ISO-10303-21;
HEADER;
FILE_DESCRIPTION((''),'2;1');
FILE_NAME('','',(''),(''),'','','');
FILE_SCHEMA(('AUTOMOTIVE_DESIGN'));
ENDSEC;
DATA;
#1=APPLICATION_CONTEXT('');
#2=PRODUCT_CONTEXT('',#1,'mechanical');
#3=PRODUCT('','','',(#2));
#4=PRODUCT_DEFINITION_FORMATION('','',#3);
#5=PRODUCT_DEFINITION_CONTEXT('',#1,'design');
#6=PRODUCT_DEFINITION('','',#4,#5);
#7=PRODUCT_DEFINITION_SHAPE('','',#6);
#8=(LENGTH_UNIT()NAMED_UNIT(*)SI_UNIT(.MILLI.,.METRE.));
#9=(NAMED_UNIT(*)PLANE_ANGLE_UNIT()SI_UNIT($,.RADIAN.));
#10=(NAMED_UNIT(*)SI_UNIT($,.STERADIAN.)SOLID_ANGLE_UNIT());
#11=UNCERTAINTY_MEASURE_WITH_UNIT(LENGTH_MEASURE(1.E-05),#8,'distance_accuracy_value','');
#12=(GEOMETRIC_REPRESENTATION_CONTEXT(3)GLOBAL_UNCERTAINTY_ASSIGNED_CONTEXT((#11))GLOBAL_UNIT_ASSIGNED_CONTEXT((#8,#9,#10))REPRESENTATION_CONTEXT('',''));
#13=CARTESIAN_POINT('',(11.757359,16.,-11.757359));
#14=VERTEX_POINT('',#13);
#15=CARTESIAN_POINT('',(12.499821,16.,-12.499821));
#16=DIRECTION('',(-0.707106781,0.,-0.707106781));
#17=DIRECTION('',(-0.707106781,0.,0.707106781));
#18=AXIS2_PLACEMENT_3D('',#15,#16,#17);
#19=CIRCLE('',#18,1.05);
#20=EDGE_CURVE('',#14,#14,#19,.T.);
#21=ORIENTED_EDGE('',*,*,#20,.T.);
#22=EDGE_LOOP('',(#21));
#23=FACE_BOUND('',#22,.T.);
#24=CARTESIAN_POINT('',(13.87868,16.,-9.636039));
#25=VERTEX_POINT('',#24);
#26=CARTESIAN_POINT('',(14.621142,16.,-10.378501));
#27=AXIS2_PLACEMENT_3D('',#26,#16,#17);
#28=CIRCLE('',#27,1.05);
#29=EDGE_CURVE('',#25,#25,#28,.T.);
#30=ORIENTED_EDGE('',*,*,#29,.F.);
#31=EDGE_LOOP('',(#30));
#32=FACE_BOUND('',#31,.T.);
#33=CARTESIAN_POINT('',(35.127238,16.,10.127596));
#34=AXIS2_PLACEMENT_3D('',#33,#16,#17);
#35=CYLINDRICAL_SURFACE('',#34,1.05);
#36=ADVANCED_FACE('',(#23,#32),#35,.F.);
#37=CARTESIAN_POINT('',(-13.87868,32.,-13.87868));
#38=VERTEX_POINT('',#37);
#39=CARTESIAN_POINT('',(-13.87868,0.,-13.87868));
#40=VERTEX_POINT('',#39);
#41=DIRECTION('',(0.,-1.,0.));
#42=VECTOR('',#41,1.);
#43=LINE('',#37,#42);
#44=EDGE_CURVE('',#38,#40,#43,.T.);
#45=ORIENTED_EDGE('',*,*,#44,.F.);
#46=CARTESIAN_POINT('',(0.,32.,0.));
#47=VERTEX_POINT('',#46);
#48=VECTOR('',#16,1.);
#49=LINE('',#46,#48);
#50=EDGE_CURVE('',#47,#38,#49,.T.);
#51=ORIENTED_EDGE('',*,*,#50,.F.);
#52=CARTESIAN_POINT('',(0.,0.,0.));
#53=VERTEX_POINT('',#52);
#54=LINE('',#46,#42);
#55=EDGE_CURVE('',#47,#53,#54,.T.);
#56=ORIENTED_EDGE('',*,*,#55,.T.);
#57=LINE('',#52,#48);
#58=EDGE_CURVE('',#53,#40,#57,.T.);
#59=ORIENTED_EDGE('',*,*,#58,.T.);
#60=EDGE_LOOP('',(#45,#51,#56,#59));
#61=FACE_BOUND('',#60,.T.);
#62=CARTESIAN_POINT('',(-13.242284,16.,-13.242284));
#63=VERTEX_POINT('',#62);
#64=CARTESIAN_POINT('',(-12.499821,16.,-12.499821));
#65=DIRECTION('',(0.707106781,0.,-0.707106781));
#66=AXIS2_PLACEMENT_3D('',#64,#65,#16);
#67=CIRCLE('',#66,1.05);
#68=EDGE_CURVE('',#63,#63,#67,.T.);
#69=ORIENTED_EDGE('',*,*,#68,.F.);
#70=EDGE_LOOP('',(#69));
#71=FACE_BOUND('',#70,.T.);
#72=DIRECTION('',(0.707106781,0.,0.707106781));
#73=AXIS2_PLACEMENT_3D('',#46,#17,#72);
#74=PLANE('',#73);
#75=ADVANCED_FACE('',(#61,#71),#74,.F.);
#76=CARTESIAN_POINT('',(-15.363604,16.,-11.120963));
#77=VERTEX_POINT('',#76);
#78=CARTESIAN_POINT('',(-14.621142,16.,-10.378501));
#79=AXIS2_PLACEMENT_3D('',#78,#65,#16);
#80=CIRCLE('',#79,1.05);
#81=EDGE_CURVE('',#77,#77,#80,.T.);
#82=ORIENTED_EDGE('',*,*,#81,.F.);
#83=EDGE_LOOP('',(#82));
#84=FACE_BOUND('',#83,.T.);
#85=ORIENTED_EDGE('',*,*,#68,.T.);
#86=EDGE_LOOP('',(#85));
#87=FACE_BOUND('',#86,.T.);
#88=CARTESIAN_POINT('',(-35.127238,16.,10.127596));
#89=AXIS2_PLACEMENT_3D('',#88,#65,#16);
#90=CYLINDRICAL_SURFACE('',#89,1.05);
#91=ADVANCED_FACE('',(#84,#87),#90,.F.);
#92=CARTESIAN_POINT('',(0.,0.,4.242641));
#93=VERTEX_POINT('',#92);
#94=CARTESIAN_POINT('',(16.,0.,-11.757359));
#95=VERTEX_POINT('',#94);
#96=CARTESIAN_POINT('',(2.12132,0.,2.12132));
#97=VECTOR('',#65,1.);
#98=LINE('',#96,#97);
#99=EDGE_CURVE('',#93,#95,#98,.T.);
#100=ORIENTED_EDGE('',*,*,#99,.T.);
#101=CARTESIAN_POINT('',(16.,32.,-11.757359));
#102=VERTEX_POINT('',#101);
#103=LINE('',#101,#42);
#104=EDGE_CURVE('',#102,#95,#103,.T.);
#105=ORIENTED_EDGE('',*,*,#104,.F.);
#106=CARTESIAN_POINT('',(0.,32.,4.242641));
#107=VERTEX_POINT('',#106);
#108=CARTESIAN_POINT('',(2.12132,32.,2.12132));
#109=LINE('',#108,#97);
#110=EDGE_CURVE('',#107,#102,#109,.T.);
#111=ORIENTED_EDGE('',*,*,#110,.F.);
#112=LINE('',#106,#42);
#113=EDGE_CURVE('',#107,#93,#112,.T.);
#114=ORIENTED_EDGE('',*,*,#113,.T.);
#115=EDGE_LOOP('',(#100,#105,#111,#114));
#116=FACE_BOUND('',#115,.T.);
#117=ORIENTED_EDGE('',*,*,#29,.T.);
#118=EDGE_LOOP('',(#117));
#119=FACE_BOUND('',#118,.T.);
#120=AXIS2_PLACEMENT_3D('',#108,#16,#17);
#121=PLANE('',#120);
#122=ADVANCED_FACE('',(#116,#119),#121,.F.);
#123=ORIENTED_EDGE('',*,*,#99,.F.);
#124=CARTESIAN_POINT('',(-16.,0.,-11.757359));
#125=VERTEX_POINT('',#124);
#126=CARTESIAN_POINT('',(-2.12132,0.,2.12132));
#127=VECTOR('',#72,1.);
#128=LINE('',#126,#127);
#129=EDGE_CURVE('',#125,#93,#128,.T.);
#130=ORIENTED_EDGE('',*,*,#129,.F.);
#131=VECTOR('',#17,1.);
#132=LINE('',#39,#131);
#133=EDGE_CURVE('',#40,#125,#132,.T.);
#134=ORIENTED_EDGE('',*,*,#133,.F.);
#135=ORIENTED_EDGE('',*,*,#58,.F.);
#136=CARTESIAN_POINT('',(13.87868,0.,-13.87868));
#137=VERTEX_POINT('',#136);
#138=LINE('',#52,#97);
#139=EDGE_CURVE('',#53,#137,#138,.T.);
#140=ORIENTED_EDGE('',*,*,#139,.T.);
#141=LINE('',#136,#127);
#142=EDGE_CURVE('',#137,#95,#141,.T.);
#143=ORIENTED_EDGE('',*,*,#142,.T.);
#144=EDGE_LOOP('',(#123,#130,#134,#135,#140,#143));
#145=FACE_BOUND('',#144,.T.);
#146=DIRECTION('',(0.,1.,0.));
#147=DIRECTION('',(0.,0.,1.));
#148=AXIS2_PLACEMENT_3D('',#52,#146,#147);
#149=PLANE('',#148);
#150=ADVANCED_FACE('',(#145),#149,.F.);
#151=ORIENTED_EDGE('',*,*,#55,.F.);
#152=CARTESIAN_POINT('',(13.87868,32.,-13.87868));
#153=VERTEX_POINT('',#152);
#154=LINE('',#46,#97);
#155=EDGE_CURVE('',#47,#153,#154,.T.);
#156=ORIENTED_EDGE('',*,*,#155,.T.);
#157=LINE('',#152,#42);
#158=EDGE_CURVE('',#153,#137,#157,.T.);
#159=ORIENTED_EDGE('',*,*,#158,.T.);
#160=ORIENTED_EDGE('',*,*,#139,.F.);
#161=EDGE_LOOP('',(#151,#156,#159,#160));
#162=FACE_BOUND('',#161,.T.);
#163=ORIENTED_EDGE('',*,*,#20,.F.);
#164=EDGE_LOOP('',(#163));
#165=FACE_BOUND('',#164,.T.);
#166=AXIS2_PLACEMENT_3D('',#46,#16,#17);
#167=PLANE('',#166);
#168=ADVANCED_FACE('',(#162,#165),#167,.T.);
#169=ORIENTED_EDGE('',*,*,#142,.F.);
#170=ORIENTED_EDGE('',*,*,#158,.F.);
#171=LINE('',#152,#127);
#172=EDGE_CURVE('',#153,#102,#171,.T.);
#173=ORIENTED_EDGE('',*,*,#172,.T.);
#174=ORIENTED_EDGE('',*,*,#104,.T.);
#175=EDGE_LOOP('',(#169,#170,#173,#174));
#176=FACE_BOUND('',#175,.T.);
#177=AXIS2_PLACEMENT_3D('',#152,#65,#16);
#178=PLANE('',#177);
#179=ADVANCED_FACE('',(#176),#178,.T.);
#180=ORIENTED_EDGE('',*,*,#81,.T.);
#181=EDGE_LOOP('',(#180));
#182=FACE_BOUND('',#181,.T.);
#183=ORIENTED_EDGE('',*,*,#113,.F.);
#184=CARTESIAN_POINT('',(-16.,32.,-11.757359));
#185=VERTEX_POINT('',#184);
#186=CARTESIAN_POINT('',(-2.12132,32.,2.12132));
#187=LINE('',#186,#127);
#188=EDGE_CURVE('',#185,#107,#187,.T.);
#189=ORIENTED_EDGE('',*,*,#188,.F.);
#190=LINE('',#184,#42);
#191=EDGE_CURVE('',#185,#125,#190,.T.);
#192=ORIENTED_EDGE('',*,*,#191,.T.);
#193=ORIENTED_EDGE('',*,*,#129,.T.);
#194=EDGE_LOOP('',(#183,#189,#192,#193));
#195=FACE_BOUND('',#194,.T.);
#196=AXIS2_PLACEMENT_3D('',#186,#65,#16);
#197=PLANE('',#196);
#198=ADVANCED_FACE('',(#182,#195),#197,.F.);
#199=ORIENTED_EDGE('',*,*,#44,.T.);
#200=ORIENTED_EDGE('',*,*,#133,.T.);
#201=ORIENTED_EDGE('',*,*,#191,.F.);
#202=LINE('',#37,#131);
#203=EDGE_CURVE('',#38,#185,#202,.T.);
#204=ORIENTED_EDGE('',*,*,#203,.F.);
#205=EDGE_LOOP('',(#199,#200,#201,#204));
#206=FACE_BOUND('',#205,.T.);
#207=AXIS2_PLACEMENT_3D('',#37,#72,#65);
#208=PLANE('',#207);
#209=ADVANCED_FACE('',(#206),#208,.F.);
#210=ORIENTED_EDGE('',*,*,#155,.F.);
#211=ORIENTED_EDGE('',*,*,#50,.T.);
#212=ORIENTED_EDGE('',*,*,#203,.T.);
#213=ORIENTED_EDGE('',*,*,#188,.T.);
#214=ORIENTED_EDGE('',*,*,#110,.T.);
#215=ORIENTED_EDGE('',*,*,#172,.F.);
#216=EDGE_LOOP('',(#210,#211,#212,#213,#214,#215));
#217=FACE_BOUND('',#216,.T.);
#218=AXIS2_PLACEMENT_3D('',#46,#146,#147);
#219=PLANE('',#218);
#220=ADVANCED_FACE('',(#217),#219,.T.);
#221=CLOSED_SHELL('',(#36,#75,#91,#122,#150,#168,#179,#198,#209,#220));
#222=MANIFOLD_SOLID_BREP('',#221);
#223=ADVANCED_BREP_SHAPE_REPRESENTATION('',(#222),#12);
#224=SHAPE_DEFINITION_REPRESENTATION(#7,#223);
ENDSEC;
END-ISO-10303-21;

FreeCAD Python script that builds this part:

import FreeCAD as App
import Part
import Sketcher


def add_polygon(sketch, points):
    """Adds a closed chain of lines whose ends are joined by coincident constraints."""
    first, n = sketch.GeometryCount, len(points)
    for a, b in zip(points, points[1:] + points[:1]):
        sketch.addGeometry(Part.LineSegment(App.Vector(*a, 0), App.Vector(*b, 0)), False)
    for i in range(n):
        sketch.addConstraint(Sketcher.Constraint("Coincident", first + i, 2, first + (i + 1) % n, 1))

doc = App.newDocument("Part")
body = doc.addObject("PartDesign::Body", "Body")

# Sketch on XZ plane
sketch1 = doc.addObject("Sketcher::SketchObject", "Sketch")
body.addObject(sketch1)
sketch1.AttachmentSupport = (doc.XZ_Plane, [""])
sketch1.MapMode = "FlatFace"
add_polygon(sketch1, [(-16, -11.8), (0, 4.2), (16, -11.8), (13.9, -13.9), (0, 0), (-13.9, -13.9)])  # lines 0-5
sketch1.addConstraint(Sketcher.Constraint("Coincident", 3, 2, -1, 1))
sketch1.addConstraint(Sketcher.Constraint("Symmetric", 2, 2, 4, 2, -2))
sketch1.addConstraint(Sketcher.Constraint("Symmetric", 1, 2, 5, 2, -2))
sketch1.addConstraint(Sketcher.Constraint("PointOnObject", 0, 2, -2))
sketch1.addConstraint(Sketcher.Constraint("Perpendicular", 0, 1))
sketch1.addConstraint(Sketcher.Constraint("Perpendicular", 1, 2))
sketch1.addConstraint(Sketcher.Constraint("Perpendicular", 2, 3))
sketch1.addConstraint(Sketcher.Constraint("Distance", 2, 3.0))
sketch1.addConstraint(Sketcher.Constraint("DistanceX", -1, 1, 1, 2, 16.0))
pad1 = doc.addObject("PartDesign::Pad", "Pad")
body.addObject(pad1)
pad1.Profile = sketch1
pad1.Length = 32
pad1.Reversed = True

# Sketch on an angled plane
sketch2 = doc.addObject("Sketcher::SketchObject", "Sketch001")
body.addObject(sketch2)
sketch2.Placement = App.Placement(App.Vector(0, 0, 0), App.Rotation(App.Vector(-0.707106781, 0, -0.707106781), App.Vector(0, 0.999999999, 0), App.Vector(0.707106781, 0, -0.707106781), "ZXY"))
sketch2.addGeometry(Part.Circle(App.Vector(17.7, 16, 0), App.Vector(0, 0, 1), 1.1), False)
sketch2.addConstraint(Sketcher.Constraint("Diameter", 0, 2.1))
sketch2.addConstraint(Sketcher.Constraint("DistanceY", -1, 1, 0, 3, 16.0))
sketch2.addConstraint(Sketcher.Constraint("DistanceX", -1, 1, 0, 3, 17.677417))
pocket1 = doc.addObject("PartDesign::Pocket", "Pocket")
body.addObject(pocket1)
pocket1.Profile = sketch2
pocket1.Length = 32

# Sketch on an angled plane
sketch3 = doc.addObject("Sketcher::SketchObject", "Sketch002")
body.addObject(sketch3)
sketch3.Placement = App.Placement(App.Vector(0, 0, 0), App.Rotation(App.Vector(-0.707106781, 0, 0.707106781), App.Vector(0, 0.999999999, 0), App.Vector(-0.707106781, 0, -0.707106781), "ZXY"))
sketch3.addGeometry(Part.Circle(App.Vector(-17.7, 16, 0), App.Vector(0, 0, 1), 1.1), False)
sketch3.addConstraint(Sketcher.Constraint("Diameter", 0, 2.1))
sketch3.addConstraint(Sketcher.Constraint("DistanceY", -1, 1, 0, 3, 16.0))
sketch3.addConstraint(Sketcher.Constraint("DistanceX", 0, 3, -1, 1, 17.677417))
pocket2 = doc.addObject("PartDesign::Pocket", "Pocket001")
body.addObject(pocket2)
pocket2.Profile = sketch3
pocket2.Length = 32

doc.recompute()
